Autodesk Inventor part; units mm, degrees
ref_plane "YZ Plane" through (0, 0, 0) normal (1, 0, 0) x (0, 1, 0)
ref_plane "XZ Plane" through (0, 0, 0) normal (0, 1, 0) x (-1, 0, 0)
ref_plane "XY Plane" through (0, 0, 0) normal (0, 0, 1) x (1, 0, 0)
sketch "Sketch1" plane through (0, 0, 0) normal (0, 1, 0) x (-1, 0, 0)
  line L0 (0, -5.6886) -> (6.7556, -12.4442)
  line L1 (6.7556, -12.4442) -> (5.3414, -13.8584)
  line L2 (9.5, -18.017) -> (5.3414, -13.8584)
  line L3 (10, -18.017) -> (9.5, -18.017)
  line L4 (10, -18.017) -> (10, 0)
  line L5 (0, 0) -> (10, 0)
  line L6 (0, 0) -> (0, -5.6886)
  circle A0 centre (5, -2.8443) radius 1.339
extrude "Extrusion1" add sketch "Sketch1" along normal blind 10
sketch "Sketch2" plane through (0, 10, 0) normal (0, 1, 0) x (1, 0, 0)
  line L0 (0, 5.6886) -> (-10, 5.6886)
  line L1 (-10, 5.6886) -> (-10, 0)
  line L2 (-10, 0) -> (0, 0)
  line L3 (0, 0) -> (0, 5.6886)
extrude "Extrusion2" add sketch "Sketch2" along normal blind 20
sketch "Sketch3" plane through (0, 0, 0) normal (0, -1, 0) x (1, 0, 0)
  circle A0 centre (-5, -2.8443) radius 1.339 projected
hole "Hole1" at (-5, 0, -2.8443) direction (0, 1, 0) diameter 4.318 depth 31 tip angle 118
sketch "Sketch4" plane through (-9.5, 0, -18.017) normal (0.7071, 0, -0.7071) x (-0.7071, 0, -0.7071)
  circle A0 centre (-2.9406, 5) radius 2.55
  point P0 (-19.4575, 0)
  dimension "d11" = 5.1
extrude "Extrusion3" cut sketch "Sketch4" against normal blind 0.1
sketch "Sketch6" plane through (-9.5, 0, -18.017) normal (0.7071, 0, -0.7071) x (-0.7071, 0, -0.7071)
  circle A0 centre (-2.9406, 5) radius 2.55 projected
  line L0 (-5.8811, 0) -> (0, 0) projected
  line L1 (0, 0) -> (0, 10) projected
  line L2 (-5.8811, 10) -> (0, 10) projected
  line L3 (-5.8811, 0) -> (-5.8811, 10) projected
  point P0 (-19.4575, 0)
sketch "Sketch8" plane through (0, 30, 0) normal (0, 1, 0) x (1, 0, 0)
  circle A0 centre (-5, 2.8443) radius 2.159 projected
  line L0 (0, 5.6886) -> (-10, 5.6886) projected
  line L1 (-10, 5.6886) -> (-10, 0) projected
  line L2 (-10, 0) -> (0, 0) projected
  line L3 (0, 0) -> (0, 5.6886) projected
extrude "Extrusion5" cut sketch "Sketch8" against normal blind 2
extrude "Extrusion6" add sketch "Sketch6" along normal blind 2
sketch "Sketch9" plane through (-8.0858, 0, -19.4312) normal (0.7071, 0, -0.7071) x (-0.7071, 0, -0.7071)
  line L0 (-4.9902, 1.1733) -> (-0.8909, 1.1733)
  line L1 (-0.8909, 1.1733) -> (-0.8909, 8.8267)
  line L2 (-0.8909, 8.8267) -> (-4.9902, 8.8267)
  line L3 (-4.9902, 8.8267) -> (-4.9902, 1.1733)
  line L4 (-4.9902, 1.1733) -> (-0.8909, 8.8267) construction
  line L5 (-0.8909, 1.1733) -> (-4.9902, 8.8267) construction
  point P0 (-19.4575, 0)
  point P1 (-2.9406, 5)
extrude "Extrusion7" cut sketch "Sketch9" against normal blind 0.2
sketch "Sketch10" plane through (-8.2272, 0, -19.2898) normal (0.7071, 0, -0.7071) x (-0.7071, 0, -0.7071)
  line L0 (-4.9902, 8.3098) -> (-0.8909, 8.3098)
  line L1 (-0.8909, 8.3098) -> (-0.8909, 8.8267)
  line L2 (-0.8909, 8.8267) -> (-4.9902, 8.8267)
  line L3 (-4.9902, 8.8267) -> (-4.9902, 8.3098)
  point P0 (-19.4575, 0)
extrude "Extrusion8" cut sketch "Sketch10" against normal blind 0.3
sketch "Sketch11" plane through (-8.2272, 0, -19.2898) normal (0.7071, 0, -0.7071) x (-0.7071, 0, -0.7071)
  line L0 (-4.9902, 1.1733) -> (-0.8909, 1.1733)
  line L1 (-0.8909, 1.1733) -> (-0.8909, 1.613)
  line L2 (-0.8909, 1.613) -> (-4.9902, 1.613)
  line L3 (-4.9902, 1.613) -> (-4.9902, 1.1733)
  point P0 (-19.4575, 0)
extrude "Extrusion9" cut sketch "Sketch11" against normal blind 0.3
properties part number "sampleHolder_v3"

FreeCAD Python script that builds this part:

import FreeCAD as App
import Part
import Sketcher
from FreeCAD import Vector
Q = App.Units.Quantity


def add_polygon(sketch, points):
    """Adds a closed chain of lines whose ends are joined by coincident constraints."""
    first, n = sketch.GeometryCount, len(points)
    for a, b in zip(points, points[1:] + points[:1]):
        sketch.addGeometry(Part.LineSegment(App.Vector(*a, 0), App.Vector(*b, 0)), False)
    for i in range(n):
        sketch.addConstraint(Sketcher.Constraint("Coincident", first + i, 2, first + (i + 1) % n, 1))

doc = App.newDocument("Part")
body = doc.addObject("PartDesign::Body", "Body")

# Sketch on XZ plane
sketch1 = body.newObject("Sketcher::SketchObject", "Sketch")
sketch1.AttachmentSupport = (doc.getObject("XZ_Plane"), [""])
sketch1.MapMode = "FlatFace"
add_polygon(sketch1, [(0, 0), (0, -5.7), (-6.8, -12.4), (-5.3, -13.9), (-9.5, -18), (-10, -18), (-10, 0)])  # lines 0-6
sketch1.addGeometry(Part.Circle(Vector(-5, -2.8, 0), Vector(0, 0, 1), 1.3), False)  # 7
sketch1.addConstraint([
    Sketcher.Constraint("Vertical", 0),
    Sketcher.Constraint("Horizontal", 4),
    Sketcher.Constraint("Vertical", 5),
    Sketcher.Constraint("Horizontal", 6),
    Sketcher.Constraint("Coincident", 6, 2, -1, 1),
    Sketcher.Constraint("Perpendicular", 1, 2),
    Sketcher.Constraint("Perpendicular", 2, 3),
    Sketcher.Constraint("DistanceX", 6, 1, 6, 2, Q("10 mm")),
    Sketcher.Constraint("Angle", 1, Q("-135 deg")),
    Sketcher.Constraint("Distance", 2, Q("2 mm")),
    Sketcher.Constraint("Diameter", 7, Q("2.678 mm")),
    Sketcher.Constraint("DistanceX", 4, 2, 4, 1, Q("0.5 mm")),
    Sketcher.Constraint("DistanceX", 7, 3, -1, 1, Q("5 mm")),
    Sketcher.Constraint("DistanceY", 1, 2, 7, 3, Q("9.6 mm")),
    Sketcher.Constraint("DistanceY", 5, 1, 5, 2, Q("18.017 mm")),
    Sketcher.Constraint("Distance", 1, Q("9.5539 mm")),
])
pad1 = body.newObject("PartDesign::Pad", "Pad")
pad1.Profile = sketch1
pad1.Length = 10
pad1.Reversed = True

# Sketch on XZ plane
sketch2 = body.newObject("Sketcher::SketchObject", "Sketch001")
sketch2.AttachmentSupport = (doc.getObject("XZ_Plane"), [""])
sketch2.MapMode = "FlatFace"
sketch2.AttachmentOffset = App.Placement(Vector(0, 0, -10), App.Rotation())
add_polygon(sketch2, [(0, 0), (0, -6), (-10, -6), (-10, 0)])  # lines 0-3
sketch2.addConstraint([
    Sketcher.Constraint("Vertical", 0),
    Sketcher.Constraint("Horizontal", 1),
    Sketcher.Constraint("Vertical", 2),
    Sketcher.Constraint("Horizontal", 3),
    Sketcher.Constraint("Coincident", 3, 2, -1, 1),
    Sketcher.Constraint("DistanceX", 1, 2, 1, 1, Q("10 mm")),
    Sketcher.Constraint("DistanceY", 0, 2, 0, 1, Q("5.6886 mm")),
])
pad2 = body.newObject("PartDesign::Pad", "Pad001")
pad2.Profile = sketch2
pad2.Length = 20
pad2.Reversed = True

# Sketch on XZ plane
sketch3 = body.newObject("Sketcher::SketchObject", "Sketch002")
sketch3.AttachmentSupport = (doc.getObject("XZ_Plane"), [""])
sketch3.MapMode = "FlatFace"
sketch3.addGeometry(Part.Circle(Vector(-5, -2.8, 0), Vector(0, 0, 1), 2.2), False)
sketch3.addConstraint([
    Sketcher.Constraint("Diameter", 0, Q("4.318 mm")),
    Sketcher.Constraint("DistanceX", 0, 3, -1, 1, Q("5 mm")),
    Sketcher.Constraint("DistanceY", 0, 3, -1, 1, Q("2.8443 mm")),
])
doc.recompute()
hole = body.newObject("PartDesign::Hole", "Hole")
hole.Profile = sketch3
hole.ThreadType = "None"
hole.Diameter = 4.318
hole.DepthType = "Dimension"
hole.Depth = 31
hole.DrillPoint = "Angled"
hole.DrillPointAngle = 118

# Sketch on an angled plane
sketch4 = body.newObject("Sketcher::SketchObject", "Sketch003")
sketch4.Placement = App.Placement(Vector(-9.5, 0, -18.017), App.Rotation(Vector(-0.707106781, 0, -0.707106781), Vector(0, 0.999999999, 0), Vector(0.707106781, 0, -0.707106781), "ZXY"))
sketch4.addGeometry(Part.Circle(Vector(-2.9, 5, 0), Vector(0, 0, 1), 2.5), False)
sketch4.addConstraint([
    Sketcher.Constraint("Diameter", 0, Q("5.1 mm")),
    Sketcher.Constraint("DistanceY", -1, 1, 0, 3, Q("5 mm")),
    Sketcher.Constraint("DistanceX", 0, 3, -1, 1, Q("2.9406 mm")),
])
pocket1 = body.newObject("PartDesign::Pocket", "Pocket")
pocket1.Profile = sketch4
pocket1.Length = 0.1

# Sketch on XZ plane
sketch5 = body.newObject("Sketcher::SketchObject", "Sketch004")
sketch5.AttachmentSupport = (doc.getObject("XZ_Plane"), [""])
sketch5.MapMode = "FlatFace"
sketch5.AttachmentOffset = App.Placement(Vector(0, 0, -30), App.Rotation())
add_polygon(sketch5, [(0, 0), (0, -5.7), (-10, -5.7), (-10, 0)])  # lines 0-3
sketch5.addGeometry(Part.Circle(Vector(-5, -2.8, 0), Vector(0, 0, 1), 2.2), False)  # 4
sketch5.addConstraint([
    Sketcher.Constraint("Vertical", 0),
    Sketcher.Constraint("Horizontal", 1),
    Sketcher.Constraint("Vertical", 2),
    Sketcher.Constraint("Horizontal", 3),
    Sketcher.Constraint("Coincident", 3, 2, -1, 1),
    Sketcher.Constraint("DistanceX", 1, 2, 1, 1, Q("10 mm")),
    Sketcher.Constraint("Diameter", 4, Q("4.318 mm")),
    Sketcher.Constraint("DistanceX", 4, 3, -1, 1, Q("5 mm")),
    Sketcher.Constraint("DistanceY", 0, 2, 0, 1, Q("5.6886 mm")),
    Sketcher.Constraint("DistanceY", 4, 3, -1, 1, Q("2.8443 mm")),
])
pocket2 = body.newObject("PartDesign::Pocket", "Pocket001")
pocket2.Profile = sketch5
pocket2.Length = 2
pocket2.Reversed = True

# Sketch on an angled plane
sketch6 = body.newObject("Sketcher::SketchObject", "Sketch005")
sketch6.Placement = App.Placement(Vector(-9.5, 0, -18.017), App.Rotation(Vector(-0.707106781, 0, -0.707106781), Vector(0, 0.999999999, 0), Vector(0.707106781, 0, -0.707106781), "ZXY"))
add_polygon(sketch6, [(-5.9, 10), (-5.9, 0), (0, 0), (0, 10)])  # lines 0-3
sketch6.addGeometry(Part.Circle(Vector(-2.9, 5, 0), Vector(0, 0, 1), 2.5), False)  # 4
sketch6.addConstraint([
    Sketcher.Constraint("Vertical", 0),
    Sketcher.Constraint("Horizontal", 1),
    Sketcher.Constraint("Vertical", 2),
    Sketcher.Constraint("Horizontal", 3),
    Sketcher.Constraint("Coincident", 1, 2, -1, 1),
    Sketcher.Constraint("Diameter", 4, Q("5.1 mm")),
    Sketcher.Constraint("DistanceY", 0, 2, 0, 1, Q("10 mm")),
    Sketcher.Constraint("DistanceY", -1, 1, 4, 3, Q("5 mm")),
    Sketcher.Constraint("DistanceX", 1, 1, 1, 2, Q("5.881 mm")),
    Sketcher.Constraint("DistanceX", 4, 3, -1, 1, Q("2.9406 mm")),
])
pad3 = body.newObject("PartDesign::Pad", "Pad002")
pad3.Profile = sketch6
pad3.Length = 2

# Sketch on an angled plane
sketch7 = body.newObject("Sketcher::SketchObject", "Sketch006")
sketch7.Placement = App.Placement(Vector(-8.0858, 0, -19.4312), App.Rotation(Vector(-0.707106781, 0, -0.707106781), Vector(0, 0.999999999, 0), Vector(0.707106781, 0, -0.707106781), "ZXY"))
add_polygon(sketch7, [(-5, 8.8), (-5, 1.2), (-0.9, 1.2), (-0.9, 8.8)])  # lines 0-3
sketch7.addConstraint([
    Sketcher.Constraint("Vertical", 0),
    Sketcher.Constraint("Horizontal", 1),
    Sketcher.Constraint("Vertical", 2),
    Sketcher.Constraint("Horizontal", 3),
    Sketcher.Constraint("DistanceX", 1, 1, 1, 2, Q("4.0993 mm")),
    Sketcher.Constraint("DistanceY", 0, 2, 0, 1, Q("7.6534 mm")),
    Sketcher.Constraint("DistanceX", 1, 2, -1, 1, Q("0.891 mm")),
    Sketcher.Constraint("DistanceY", -1, 1, 0, 2, Q("1.1733 mm")),
])
pocket3 = body.newObject("PartDesign::Pocket", "Pocket002")
pocket3.Profile = sketch7
pocket3.Length = 0.2

# Sketch on an angled plane
sketch8 = body.newObject("Sketcher::SketchObject", "Sketch007")
sketch8.Placement = App.Placement(Vector(-8.2272, 0, -19.2898), App.Rotation(Vector(-0.707106781, 0, -0.707106781), Vector(0, 0.999999999, 0), Vector(0.707106781, 0, -0.707106781), "ZXY"))
add_polygon(sketch8, [(-5, 8.8), (-5, 8.3), (-0.9, 8.3), (-0.9, 8.8)])  # lines 0-3
sketch8.addConstraint([
    Sketcher.Constraint("Vertical", 0),
    Sketcher.Constraint("Horizontal", 1),
    Sketcher.Constraint("Vertical", 2),
    Sketcher.Constraint("Horizontal", 3),
    Sketcher.Constraint("DistanceY", 0, 2, 0, 1, Q("0.517 mm")),
    Sketcher.Constraint("DistanceX", 1, 1, 1, 2, Q("4.0993 mm")),
    Sketcher.Constraint("DistanceX", 1, 2, -1, 1, Q("0.891 mm")),
    Sketcher.Constraint("DistanceY", -1, 1, 0, 2, Q("8.3098 mm")),
])
pocket4 = body.newObject("PartDesign::Pocket", "Pocket003")
pocket4.Profile = sketch8
pocket4.Length = 0.3

# Sketch on an angled plane
sketch9 = body.newObject("Sketcher::SketchObject", "Sketch008")
sketch9.Placement = App.Placement(Vector(-8.2272, 0, -19.2898), App.Rotation(Vector(-0.707106781, 0, -0.707106781), Vector(0, 0.999999999, 0), Vector(0.707106781, 0, -0.707106781), "ZXY"))
add_polygon(sketch9, [(-4.99, 1.61), (-4.99, 1.17), (-0.89, 1.17), (-0.89, 1.61)])  # lines 0-3
sketch9.addConstraint([
    Sketcher.Constraint("Vertical", 0),
    Sketcher.Constraint("Horizontal", 1),
    Sketcher.Constraint("Vertical", 2),
    Sketcher.Constraint("Horizontal", 3),
    Sketcher.Constraint("DistanceX", 1, 1, 1, 2, Q("4.0993 mm")),
    Sketcher.Constraint("DistanceY", 0, 2, 0, 1, Q("0.4397 mm")),
    Sketcher.Constraint("DistanceX", 1, 2, -1, 1, Q("0.891 mm")),
    Sketcher.Constraint("DistanceY", -1, 1, 2, 2, Q("1.613 mm")),
])
pocket5 = body.newObject("PartDesign::Pocket", "Pocket004")
pocket5.Profile = sketch9
pocket5.Length = 0.3

doc.recompute()
